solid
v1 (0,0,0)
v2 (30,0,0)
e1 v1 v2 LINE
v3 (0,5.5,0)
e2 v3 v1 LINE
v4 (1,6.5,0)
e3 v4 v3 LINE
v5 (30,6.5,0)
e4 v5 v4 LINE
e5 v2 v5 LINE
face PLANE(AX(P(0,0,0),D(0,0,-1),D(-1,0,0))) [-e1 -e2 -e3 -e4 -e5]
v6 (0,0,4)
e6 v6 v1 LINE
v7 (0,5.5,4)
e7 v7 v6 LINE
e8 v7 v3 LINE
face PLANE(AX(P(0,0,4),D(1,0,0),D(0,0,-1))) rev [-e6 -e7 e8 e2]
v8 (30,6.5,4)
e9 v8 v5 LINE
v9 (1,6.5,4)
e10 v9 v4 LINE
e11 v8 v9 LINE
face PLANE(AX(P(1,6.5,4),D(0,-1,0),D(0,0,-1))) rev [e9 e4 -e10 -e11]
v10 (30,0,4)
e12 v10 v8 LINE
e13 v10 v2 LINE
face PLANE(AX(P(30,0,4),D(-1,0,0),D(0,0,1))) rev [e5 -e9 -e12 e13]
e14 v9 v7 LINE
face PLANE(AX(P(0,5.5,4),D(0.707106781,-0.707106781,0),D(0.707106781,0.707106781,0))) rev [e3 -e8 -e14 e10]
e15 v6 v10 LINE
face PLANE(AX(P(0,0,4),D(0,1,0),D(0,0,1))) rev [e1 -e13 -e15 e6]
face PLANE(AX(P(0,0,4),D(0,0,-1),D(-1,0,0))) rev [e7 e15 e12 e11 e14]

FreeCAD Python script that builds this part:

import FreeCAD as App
import Part
import Sketcher

V = App.Vector
Q = App.Units.Quantity


def add_polygon(sketch, points):
    """Adds a closed chain of lines whose ends are joined by coincident constraints."""
    first, n = sketch.GeometryCount, len(points)
    for a, b in zip(points, points[1:] + points[:1]):
        sketch.addGeometry(Part.LineSegment(App.Vector(*a, 0), App.Vector(*b, 0)), False)
    for i in range(n):
        sketch.addConstraint(Sketcher.Constraint("Coincident", first + i, 2, first + (i + 1) % n, 1))

doc = App.newDocument("Part")
params = doc.addObject("Spreadsheet::Sheet", "Params")
for row, (alias, value) in enumerate([
    ("sketch1_width", "30 mm"),
    ("sketch1_width2", "29 mm"),
    ("sketch1_height", "5.5 mm"),
    ("pad1_length", "4 mm"),
], start=1):
    params.set(f"A{row}", alias)
    params.set(f"B{row}", "=" + value)
    params.setAlias(f"B{row}", alias)

body = doc.addObject("PartDesign::Body", "Body")

# Sketch on XY plane
sketch1 = body.newObject("Sketcher::SketchObject", "Sketch")
sketch1.AttachmentSupport = (doc.getObject("XY_Plane"), [""])
sketch1.MapMode = "FlatFace"
add_polygon(sketch1, [(1, 6.5), (0, 5.5), (0, 0), (30, 0), (30, 6.5)])  # lines 0-4
sketch1.addConstraint([
    Sketcher.Constraint("Vertical", 1),
    Sketcher.Constraint("Horizontal", 2),
    Sketcher.Constraint("Vertical", 3),
    Sketcher.Constraint("Horizontal", 4),
    Sketcher.Constraint("Coincident", 1, 2, -1, 1),
    Sketcher.Constraint("DistanceX", 2, 1, 2, 2, 30.0),
    Sketcher.Constraint("DistanceX", 4, 2, 4, 1, 29.0),
    Sketcher.Constraint("Angle", 0, Q("-135 deg")),
    Sketcher.Constraint("DistanceY", 1, 2, 1, 1, 5.5),
])
sketch1.setExpression("Constraints[10]", "Params.sketch1_width")
sketch1.setExpression("Constraints[11]", "Params.sketch1_width2")
sketch1.setExpression("Constraints[13]", "Params.sketch1_height")
pad1 = body.newObject("PartDesign::Pad", "Pad")
pad1.Profile = sketch1
pad1.setExpression("Length", "Params.pad1_length")

doc.recompute()
